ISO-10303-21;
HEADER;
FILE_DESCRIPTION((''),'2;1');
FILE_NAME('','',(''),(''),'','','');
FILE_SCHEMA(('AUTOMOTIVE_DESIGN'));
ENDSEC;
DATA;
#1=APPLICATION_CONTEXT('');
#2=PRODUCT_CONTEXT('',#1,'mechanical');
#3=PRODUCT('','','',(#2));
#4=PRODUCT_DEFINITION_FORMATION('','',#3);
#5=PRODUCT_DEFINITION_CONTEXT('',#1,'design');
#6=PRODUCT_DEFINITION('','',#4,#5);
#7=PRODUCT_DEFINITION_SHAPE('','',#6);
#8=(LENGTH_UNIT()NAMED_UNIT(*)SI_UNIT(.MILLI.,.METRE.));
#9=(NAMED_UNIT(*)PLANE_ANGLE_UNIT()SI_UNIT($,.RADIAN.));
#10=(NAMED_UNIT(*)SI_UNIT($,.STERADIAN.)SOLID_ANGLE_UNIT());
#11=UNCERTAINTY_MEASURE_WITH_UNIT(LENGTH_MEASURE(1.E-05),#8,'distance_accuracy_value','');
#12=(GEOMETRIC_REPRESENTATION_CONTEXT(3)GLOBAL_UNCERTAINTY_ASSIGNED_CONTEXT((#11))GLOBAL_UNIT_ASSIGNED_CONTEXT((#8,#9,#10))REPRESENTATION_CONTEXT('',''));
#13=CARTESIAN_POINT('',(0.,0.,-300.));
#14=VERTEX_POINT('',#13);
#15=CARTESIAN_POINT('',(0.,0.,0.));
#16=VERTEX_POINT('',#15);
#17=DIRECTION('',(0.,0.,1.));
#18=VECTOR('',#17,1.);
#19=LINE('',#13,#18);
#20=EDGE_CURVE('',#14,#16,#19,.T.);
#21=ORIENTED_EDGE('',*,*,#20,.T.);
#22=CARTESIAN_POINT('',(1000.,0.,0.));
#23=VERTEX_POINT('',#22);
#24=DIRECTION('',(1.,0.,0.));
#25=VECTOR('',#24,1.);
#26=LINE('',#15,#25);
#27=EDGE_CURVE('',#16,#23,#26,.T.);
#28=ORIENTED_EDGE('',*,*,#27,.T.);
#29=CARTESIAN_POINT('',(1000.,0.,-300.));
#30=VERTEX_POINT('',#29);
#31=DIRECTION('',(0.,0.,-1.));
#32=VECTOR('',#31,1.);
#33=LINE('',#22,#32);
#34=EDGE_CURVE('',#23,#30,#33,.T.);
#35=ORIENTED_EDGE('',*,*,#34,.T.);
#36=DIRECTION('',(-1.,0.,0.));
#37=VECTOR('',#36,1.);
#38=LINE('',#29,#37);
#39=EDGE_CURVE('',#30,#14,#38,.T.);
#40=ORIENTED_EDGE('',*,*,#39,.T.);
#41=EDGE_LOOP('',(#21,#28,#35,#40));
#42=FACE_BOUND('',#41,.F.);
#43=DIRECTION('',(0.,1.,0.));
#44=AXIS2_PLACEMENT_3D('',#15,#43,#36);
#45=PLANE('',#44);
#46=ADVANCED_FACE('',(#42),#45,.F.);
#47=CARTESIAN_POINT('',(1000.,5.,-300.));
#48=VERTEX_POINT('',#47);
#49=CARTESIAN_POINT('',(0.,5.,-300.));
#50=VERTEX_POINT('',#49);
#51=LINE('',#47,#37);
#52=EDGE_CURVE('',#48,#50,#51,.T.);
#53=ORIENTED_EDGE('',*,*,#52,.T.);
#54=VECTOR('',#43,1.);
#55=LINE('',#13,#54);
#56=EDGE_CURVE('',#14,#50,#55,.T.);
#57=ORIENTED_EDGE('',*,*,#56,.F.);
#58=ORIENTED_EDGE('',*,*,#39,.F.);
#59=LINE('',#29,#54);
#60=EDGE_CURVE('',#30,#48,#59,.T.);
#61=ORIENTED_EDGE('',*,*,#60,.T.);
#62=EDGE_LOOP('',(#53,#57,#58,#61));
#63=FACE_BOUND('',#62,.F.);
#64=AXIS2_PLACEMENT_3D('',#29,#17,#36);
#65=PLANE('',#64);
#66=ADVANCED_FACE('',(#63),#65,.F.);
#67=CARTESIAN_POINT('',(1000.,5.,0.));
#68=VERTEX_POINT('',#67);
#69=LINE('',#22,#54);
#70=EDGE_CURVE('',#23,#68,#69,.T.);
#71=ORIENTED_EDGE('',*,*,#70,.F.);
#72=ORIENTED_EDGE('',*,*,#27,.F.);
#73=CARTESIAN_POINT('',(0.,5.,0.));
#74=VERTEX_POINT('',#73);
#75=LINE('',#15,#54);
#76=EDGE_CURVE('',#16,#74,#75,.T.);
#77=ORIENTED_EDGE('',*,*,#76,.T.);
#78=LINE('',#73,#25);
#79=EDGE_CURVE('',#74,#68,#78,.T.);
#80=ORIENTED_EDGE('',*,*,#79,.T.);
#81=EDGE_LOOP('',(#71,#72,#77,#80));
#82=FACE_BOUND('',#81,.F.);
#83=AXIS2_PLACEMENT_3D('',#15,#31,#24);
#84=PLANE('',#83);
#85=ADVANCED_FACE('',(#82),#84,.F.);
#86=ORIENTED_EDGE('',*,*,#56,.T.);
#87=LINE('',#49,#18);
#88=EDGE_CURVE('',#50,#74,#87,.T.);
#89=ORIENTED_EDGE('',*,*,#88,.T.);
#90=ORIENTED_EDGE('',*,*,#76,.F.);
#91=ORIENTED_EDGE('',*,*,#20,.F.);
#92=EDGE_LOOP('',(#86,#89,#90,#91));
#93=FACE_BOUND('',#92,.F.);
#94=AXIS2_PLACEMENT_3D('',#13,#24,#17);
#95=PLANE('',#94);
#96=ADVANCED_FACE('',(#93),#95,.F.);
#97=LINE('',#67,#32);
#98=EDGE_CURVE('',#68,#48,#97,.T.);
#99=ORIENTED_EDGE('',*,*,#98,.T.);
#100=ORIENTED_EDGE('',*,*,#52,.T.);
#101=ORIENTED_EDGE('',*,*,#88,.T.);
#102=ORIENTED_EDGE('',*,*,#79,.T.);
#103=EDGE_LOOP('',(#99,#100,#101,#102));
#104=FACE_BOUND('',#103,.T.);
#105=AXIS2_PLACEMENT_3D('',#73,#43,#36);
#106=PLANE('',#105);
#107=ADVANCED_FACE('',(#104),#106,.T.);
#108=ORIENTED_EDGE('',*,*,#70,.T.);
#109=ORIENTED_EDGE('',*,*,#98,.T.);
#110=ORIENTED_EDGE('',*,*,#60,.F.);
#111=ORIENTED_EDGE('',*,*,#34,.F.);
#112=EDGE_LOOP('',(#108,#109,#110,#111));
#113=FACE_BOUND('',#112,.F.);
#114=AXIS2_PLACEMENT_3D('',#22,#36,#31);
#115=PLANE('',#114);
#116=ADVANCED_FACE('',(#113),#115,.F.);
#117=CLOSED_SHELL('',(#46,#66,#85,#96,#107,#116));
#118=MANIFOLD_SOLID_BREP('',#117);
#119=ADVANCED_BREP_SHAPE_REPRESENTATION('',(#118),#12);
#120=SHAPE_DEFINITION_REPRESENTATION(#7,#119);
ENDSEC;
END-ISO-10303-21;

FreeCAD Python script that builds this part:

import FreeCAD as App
import Part
import Sketcher

doc = App.newDocument("Part")
params = doc.addObject("Spreadsheet::Sheet", "Params")
for row, (alias, value) in enumerate([
    ("sketch1_width", "1000 mm"),
    ("sketch1_height", "300 mm"),
    ("pad1_length", "5 mm"),
], start=1):
    params.set(f"A{row}", alias)
    params.set(f"B{row}", "=" + value)
    params.setAlias(f"B{row}", alias)

body = doc.addObject("PartDesign::Body", "Body")

# Sketch on XZ plane
sketch1 = doc.addObject("Sketcher::SketchObject", "Sketch")
body.addObject(sketch1)
sketch1.AttachmentSupport = (doc.XZ_Plane, [""])
sketch1.MapMode = "FlatFace"
sketch1.addGeometry([
    Part.LineSegment(App.Vector(0, -300, 0), App.Vector(0, 0, 0)),
    Part.LineSegment(App.Vector(0, 0, 0), App.Vector(1000, 0, 0)),
    Part.LineSegment(App.Vector(1000, 0, 0), App.Vector(1000, -300, 0)),
    Part.LineSegment(App.Vector(1000, -300, 0), App.Vector(0, -300, 0)),
], False)
sketch1.addConstraint([
    Sketcher.Constraint("Coincident", 0, 2, 1, 1),
    Sketcher.Constraint("Coincident", 1, 2, 2, 1),
    Sketcher.Constraint("Coincident", 2, 2, 3, 1),
    Sketcher.Constraint("Coincident", 3, 2, 0, 1),
    Sketcher.Constraint("Vertical", 0),
    Sketcher.Constraint("Horizontal", 1),
    Sketcher.Constraint("Vertical", 2),
    Sketcher.Constraint("Horizontal", 3),
    Sketcher.Constraint("Coincident", 0, 2, -1, 1),
    Sketcher.Constraint("DistanceX", 1, 1, 1, 2, 1000.0),
    Sketcher.Constraint("DistanceY", 0, 1, 0, 2, 300.0),
])
sketch1.setExpression("Constraints[9]", "Params.sketch1_width")
sketch1.setExpression("Constraints[10]", "Params.sketch1_height")
pad1 = doc.addObject("PartDesign::Pad", "Pad")
body.addObject(pad1)
pad1.Profile = sketch1
pad1.setExpression("Length", "Params.pad1_length")
pad1.Reversed = True

doc.recompute()
